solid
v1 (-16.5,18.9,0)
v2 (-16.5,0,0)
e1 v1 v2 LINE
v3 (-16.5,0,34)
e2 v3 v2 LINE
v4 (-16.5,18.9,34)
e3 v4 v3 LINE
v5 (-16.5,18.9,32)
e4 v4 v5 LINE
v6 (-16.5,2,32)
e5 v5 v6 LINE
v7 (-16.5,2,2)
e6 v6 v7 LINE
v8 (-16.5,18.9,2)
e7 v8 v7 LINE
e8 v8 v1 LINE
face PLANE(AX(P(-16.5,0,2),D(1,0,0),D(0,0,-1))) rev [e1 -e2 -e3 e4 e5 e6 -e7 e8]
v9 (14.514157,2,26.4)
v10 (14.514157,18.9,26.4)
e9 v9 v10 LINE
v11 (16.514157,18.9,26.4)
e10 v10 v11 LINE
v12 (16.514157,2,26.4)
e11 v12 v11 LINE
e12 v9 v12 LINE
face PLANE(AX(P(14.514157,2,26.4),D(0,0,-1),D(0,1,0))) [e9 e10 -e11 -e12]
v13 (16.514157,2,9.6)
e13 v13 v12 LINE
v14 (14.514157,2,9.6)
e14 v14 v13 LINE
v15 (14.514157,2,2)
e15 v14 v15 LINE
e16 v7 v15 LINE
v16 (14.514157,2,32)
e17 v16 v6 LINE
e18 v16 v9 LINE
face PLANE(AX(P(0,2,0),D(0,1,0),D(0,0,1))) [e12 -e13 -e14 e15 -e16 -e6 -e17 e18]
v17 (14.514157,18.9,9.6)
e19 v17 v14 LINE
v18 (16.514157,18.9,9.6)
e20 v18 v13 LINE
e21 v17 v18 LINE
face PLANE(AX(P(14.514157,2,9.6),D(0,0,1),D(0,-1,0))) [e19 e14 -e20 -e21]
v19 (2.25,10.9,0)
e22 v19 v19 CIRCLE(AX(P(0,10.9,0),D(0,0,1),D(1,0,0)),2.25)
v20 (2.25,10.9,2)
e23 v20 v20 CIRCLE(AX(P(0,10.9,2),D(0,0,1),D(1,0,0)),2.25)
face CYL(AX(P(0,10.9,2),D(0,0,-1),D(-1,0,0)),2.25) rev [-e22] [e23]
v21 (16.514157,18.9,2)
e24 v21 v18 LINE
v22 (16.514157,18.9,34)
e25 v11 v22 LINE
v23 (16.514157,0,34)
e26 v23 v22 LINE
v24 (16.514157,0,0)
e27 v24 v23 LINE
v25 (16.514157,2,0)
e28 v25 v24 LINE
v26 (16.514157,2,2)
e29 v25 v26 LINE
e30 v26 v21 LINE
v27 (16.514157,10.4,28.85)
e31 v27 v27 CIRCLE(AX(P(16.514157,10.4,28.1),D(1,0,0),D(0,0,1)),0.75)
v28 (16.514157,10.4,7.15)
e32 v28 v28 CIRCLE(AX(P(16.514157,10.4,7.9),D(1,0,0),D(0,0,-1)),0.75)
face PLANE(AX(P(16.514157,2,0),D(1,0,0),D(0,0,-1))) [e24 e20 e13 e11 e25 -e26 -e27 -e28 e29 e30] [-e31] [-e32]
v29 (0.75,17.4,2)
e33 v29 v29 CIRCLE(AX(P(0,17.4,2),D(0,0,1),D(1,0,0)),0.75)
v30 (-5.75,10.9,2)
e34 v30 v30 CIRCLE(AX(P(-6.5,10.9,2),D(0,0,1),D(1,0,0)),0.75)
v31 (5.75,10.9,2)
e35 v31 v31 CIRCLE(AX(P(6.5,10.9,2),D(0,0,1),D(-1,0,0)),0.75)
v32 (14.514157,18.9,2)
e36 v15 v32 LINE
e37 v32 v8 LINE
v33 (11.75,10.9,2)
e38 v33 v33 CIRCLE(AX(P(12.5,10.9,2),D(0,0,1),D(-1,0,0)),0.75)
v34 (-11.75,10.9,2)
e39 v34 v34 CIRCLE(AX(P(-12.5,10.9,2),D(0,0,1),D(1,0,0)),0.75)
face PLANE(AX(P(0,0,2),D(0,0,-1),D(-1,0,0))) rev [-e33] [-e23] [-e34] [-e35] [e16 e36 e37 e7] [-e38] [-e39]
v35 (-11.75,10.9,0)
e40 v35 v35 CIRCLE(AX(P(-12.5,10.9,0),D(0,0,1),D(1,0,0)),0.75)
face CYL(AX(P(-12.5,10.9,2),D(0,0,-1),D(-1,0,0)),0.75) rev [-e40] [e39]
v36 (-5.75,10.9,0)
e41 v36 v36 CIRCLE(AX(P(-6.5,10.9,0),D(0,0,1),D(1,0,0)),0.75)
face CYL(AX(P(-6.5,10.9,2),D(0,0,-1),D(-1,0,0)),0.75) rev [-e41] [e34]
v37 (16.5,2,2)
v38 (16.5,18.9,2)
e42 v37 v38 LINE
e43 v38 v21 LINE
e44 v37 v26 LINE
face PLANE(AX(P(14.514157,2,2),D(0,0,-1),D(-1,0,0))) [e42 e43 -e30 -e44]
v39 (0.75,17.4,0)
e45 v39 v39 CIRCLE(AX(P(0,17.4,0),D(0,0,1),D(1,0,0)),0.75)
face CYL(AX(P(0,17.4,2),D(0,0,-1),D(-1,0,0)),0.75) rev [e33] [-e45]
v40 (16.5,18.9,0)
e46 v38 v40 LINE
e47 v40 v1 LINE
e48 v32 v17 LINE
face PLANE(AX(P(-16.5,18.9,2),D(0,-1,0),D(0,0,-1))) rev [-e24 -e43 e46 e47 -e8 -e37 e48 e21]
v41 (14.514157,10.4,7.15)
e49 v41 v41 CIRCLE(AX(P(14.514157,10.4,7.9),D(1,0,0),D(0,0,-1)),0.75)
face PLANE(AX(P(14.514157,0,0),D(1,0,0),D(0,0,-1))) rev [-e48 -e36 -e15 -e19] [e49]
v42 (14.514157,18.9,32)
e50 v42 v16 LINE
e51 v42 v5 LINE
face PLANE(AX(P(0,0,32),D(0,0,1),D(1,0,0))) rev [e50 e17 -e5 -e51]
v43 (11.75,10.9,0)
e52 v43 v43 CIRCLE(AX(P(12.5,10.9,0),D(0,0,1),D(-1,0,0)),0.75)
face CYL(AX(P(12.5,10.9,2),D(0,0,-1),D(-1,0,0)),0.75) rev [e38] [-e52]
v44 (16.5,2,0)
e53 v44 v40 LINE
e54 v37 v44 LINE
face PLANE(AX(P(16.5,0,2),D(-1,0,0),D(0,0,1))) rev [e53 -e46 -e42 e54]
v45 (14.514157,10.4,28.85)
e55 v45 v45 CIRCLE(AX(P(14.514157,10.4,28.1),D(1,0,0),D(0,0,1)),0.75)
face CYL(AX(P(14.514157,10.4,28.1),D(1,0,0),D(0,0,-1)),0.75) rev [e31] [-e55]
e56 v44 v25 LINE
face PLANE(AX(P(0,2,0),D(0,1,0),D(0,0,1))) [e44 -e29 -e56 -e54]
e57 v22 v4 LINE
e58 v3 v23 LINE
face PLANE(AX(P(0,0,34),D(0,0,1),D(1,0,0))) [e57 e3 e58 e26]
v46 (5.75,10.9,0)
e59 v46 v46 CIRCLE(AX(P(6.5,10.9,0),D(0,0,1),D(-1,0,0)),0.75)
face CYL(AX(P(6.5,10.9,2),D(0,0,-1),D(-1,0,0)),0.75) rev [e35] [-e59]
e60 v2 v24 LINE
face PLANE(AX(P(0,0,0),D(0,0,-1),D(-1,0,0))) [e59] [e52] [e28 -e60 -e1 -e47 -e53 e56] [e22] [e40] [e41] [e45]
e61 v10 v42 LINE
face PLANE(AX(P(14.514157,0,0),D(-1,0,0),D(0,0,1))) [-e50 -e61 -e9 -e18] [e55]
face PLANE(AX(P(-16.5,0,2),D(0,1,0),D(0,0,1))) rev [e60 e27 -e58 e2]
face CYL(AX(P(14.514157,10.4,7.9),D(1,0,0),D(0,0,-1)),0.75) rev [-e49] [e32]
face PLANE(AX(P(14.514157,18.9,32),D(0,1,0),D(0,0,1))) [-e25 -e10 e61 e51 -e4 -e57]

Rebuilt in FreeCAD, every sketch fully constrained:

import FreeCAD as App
import Part
import Sketcher
from FreeCAD import Vector

doc = App.newDocument("Part")
body = doc.addObject("PartDesign::Body", "Body")

# Sketch on XY plane
sketch1 = body.newObject("Sketcher::SketchObject", "Sketch")
sketch1.AttachmentSupport = (doc.getObject("XY_Plane"), [""])
sketch1.MapMode = "FlatFace"
sketch1.addGeometry(Part.LineSegment(Vector(-16.5, 18.9, 0), Vector(-16.5, 0, 0)), False)
sketch1.addGeometry(Part.LineSegment(Vector(-16.5, 0, 0), Vector(16.5, 0, 0)), False)
sketch1.addGeometry(Part.LineSegment(Vector(16.5, 0, 0), Vector(16.5, 18.9, 0)), False)
sketch1.addGeometry(Part.LineSegment(Vector(16.5, 18.9, 0), Vector(-16.5, 18.9, 0)), False)
sketch1.addGeometry(Part.Circle(Vector(-12.5, 10.9, 0), Vector(0, 0, 1), 0.8), False)
sketch1.addGeometry(Part.Circle(Vector(-6.5, 10.9, 0), Vector(0, 0, 1), 0.8), False)
sketch1.addGeometry(Part.Circle(Vector(0, 10.9, 0), Vector(0, 0, 1), 2.2), False)
sketch1.addGeometry(Part.Circle(Vector(6.5, 10.9, 0), Vector(0, 0, 1), 0.8), False)
sketch1.addGeometry(Part.Circle(Vector(12.5, 10.9, 0), Vector(0, 0, 1), 0.8), False)
sketch1.addGeometry(Part.Circle(Vector(0, 17.4, 0), Vector(0, 0, 1), 0.8), False)
sketch1.addConstraint(Sketcher.Constraint("Coincident", 0, 2, 1, 1))
sketch1.addConstraint(Sketcher.Constraint("Coincident", 1, 2, 2, 1))
sketch1.addConstraint(Sketcher.Constraint("Coincident", 2, 2, 3, 1))
sketch1.addConstraint(Sketcher.Constraint("Coincident", 3, 2, 0, 1))
sketch1.addConstraint(Sketcher.Constraint("Vertical", 0))
sketch1.addConstraint(Sketcher.Constraint("Horizontal", 1))
sketch1.addConstraint(Sketcher.Constraint("Vertical", 2))
sketch1.addConstraint(Sketcher.Constraint("Horizontal", 3))
sketch1.addConstraint(Sketcher.Constraint("Equal", 4, 5))
sketch1.addConstraint(Sketcher.Constraint("Equal", 5, 7))
sketch1.addConstraint(Sketcher.Constraint("Equal", 7, 8))
sketch1.addConstraint(Sketcher.Constraint("Equal", 8, 9))
sketch1.addConstraint(Sketcher.Constraint("Symmetric", 0, 2, 1, 2, -1, 1))
sketch1.addConstraint(Sketcher.Constraint("Symmetric", 5, 3, 7, 3, -2))
sketch1.addConstraint(Sketcher.Constraint("Symmetric", 4, 3, 8, 3, -2))
sketch1.addConstraint(Sketcher.Constraint("PointOnObject", 6, 3, -2))
sketch1.addConstraint(Sketcher.Constraint("PointOnObject", 9, 3, -2))
sketch1.addConstraint(Sketcher.Constraint("Horizontal", 4, 3, 5, 3))
sketch1.addConstraint(Sketcher.Constraint("Horizontal", 5, 3, 6, 3))
sketch1.addConstraint(Sketcher.Constraint("Diameter", 4, 1.5))
sketch1.addConstraint(Sketcher.Constraint("Diameter", 6, 4.5))
sketch1.addConstraint(Sketcher.Constraint("DistanceX", 1, 1, 1, 2, 33.0))
sketch1.addConstraint(Sketcher.Constraint("DistanceY", 0, 2, 0, 1, 18.9))
sketch1.addConstraint(Sketcher.Constraint("DistanceX", 4, 3, 5, 3, 6.0))
sketch1.addConstraint(Sketcher.Constraint("DistanceX", 5, 3, 7, 3, 13.0))
sketch1.addConstraint(Sketcher.Constraint("DistanceY", 8, 3, 2, 2, 8.0))
sketch1.addConstraint(Sketcher.Constraint("DistanceY", -1, 1, 9, 3, 17.4))
pad1 = body.newObject("PartDesign::Pad", "Pad")
pad1.Profile = sketch1
pad1.Length = 2

# Sketch on XZ plane
sketch2 = body.newObject("Sketcher::SketchObject", "Sketch001")
sketch2.AttachmentSupport = (doc.getObject("XZ_Plane"), [""])
sketch2.MapMode = "FlatFace"
sketch2.addGeometry(Part.LineSegment(Vector(-16, 32, 0), Vector(-16, 0, 0)), False)
sketch2.addGeometry(Part.LineSegment(Vector(-16, 0, 0), Vector(17, 0, 0)), False)
sketch2.addGeometry(Part.LineSegment(Vector(17, 0, 0), Vector(17, 32, 0)), False)
sketch2.addGeometry(Part.LineSegment(Vector(17, 32, 0), Vector(-16, 32, 0)), False)
sketch2.addConstraint(Sketcher.Constraint("Coincident", 0, 2, 1, 1))
sketch2.addConstraint(Sketcher.Constraint("Coincident", 1, 2, 2, 1))
sketch2.addConstraint(Sketcher.Constraint("Coincident", 2, 2, 3, 1))
sketch2.addConstraint(Sketcher.Constraint("Coincident", 3, 2, 0, 1))
sketch2.addConstraint(Sketcher.Constraint("Vertical", 0))
sketch2.addConstraint(Sketcher.Constraint("Horizontal", 1))
sketch2.addConstraint(Sketcher.Constraint("Vertical", 2))
sketch2.addConstraint(Sketcher.Constraint("Horizontal", 3))
sketch2.addConstraint(Sketcher.Constraint("PointOnObject", 0, 2, -1))
sketch2.addConstraint(Sketcher.Constraint("DistanceY", 0, 2, 0, 1, 32.0))
sketch2.addConstraint(Sketcher.Constraint("DistanceX", 0, 2, -1, 1, 16.5))
sketch2.addConstraint(Sketcher.Constraint("DistanceX", 1, 1, 1, 2, 33.014157))
pad2 = body.newObject("PartDesign::Pad", "Pad001")
pad2.Profile = sketch2
pad2.Length = 2
pad2.Reversed = True

# Sketch on YZ plane
sketch3 = body.newObject("Sketcher::SketchObject", "Sketch002")
sketch3.AttachmentSupport = (doc.getObject("YZ_Plane"), [""])
sketch3.MapMode = "FlatFace"
sketch3.AttachmentOffset = App.Placement(Vector(0, 0, 16.514157), App.Rotation())
sketch3.addGeometry(Part.LineSegment(Vector(18.9, 32, 0), Vector(2, 32, 0)), False)
sketch3.addGeometry(Part.LineSegment(Vector(2, 32, 0), Vector(2, 26.4, 0)), False)
sketch3.addGeometry(Part.LineSegment(Vector(2, 26.4, 0), Vector(18.9, 26.4, 0)), False)
sketch3.addGeometry(Part.LineSegment(Vector(18.9, 26.4, 0), Vector(18.9, 32, 0)), False)
sketch3.addGeometry(Part.Circle(Vector(10.4, 28.1, 0), Vector(0, 0, 1), 0.8), False)
sketch3.addGeometry(Part.LineSegment(Vector(18.9, 9.6, 0), Vector(2, 9.6, 0)), False)
sketch3.addGeometry(Part.LineSegment(Vector(2, 9.6, 0), Vector(2, 2, 0)), False)
sketch3.addGeometry(Part.LineSegment(Vector(2, 2, 0), Vector(18.9, 2, 0)), False)
sketch3.addGeometry(Part.LineSegment(Vector(18.9, 2, 0), Vector(18.9, 9.6, 0)), False)
sketch3.addGeometry(Part.Circle(Vector(10.4, 7.9, 0), Vector(0, 0, 1), 0.8), False)
sketch3.addConstraint(Sketcher.Constraint("Coincident", 0, 2, 1, 1))
sketch3.addConstraint(Sketcher.Constraint("Coincident", 1, 2, 2, 1))
sketch3.addConstraint(Sketcher.Constraint("Coincident", 2, 2, 3, 1))
sketch3.addConstraint(Sketcher.Constraint("Coincident", 3, 2, 0, 1))
sketch3.addConstraint(Sketcher.Constraint("Coincident", 5, 2, 6, 1))
sketch3.addConstraint(Sketcher.Constraint("Coincident", 6, 2, 7, 1))
sketch3.addConstraint(Sketcher.Constraint("Coincident", 7, 2, 8, 1))
sketch3.addConstraint(Sketcher.Constraint("Coincident", 8, 2, 5, 1))
sketch3.addConstraint(Sketcher.Constraint("Horizontal", 0))
sketch3.addConstraint(Sketcher.Constraint("Vertical", 1))
sketch3.addConstraint(Sketcher.Constraint("Horizontal", 2))
sketch3.addConstraint(Sketcher.Constraint("Vertical", 3))
sketch3.addConstraint(Sketcher.Constraint("Horizontal", 5))
sketch3.addConstraint(Sketcher.Constraint("Vertical", 6))
sketch3.addConstraint(Sketcher.Constraint("Horizontal", 7))
sketch3.addConstraint(Sketcher.Constraint("Vertical", 8))
sketch3.addConstraint(Sketcher.Constraint("Equal", 4, 9))
sketch3.addConstraint(Sketcher.Constraint("Vertical", 4, 3, 9, 3))
sketch3.addConstraint(Sketcher.Constraint("Vertical", 1, 2, 5, 2))
sketch3.addConstraint(Sketcher.Constraint("Vertical", 3, 2, 7, 2))
sketch3.addConstraint(Sketcher.Constraint("Diameter", 4, 1.5))
sketch3.addConstraint(Sketcher.Constraint("DistanceX", 0, 2, 0, 1, 16.9))
sketch3.addConstraint(Sketcher.Constraint("DistanceY", 1, 2, 1, 1, 5.6))
sketch3.addConstraint(Sketcher.Constraint("DistanceY", 6, 2, 6, 1, 7.6))
sketch3.addConstraint(Sketcher.Constraint("DistanceX", -1, 1, 0, 2, 2.0))
sketch3.addConstraint(Sketcher.Constraint("DistanceY", -1, 1, 0, 2, 32.0))
sketch3.addConstraint(Sketcher.Constraint("DistanceY", -1, 1, 6, 2, 2.0))
sketch3.addConstraint(Sketcher.Constraint("DistanceX", -1, 1, 4, 3, 10.4))
sketch3.addConstraint(Sketcher.Constraint("DistanceY", -1, 1, 4, 3, 28.1))
sketch3.addConstraint(Sketcher.Constraint("DistanceY", -1, 1, 9, 3, 7.9))
pad3 = body.newObject("PartDesign::Pad", "Pad002")
pad3.Profile = sketch3
pad3.Length = 2
pad3.Reversed = True

# Sketch on XY plane
sketch4 = body.newObject("Sketcher::SketchObject", "Sketch003")
sketch4.AttachmentSupport = (doc.getObject("XY_Plane"), [""])
sketch4.MapMode = "FlatFace"
sketch4.AttachmentOffset = App.Placement(Vector(0, 0, 32), App.Rotation())
sketch4.addGeometry(Part.LineSegment(Vector(-16, 19, 0), Vector(-16, 0, 0)), False)
sketch4.addGeometry(Part.LineSegment(Vector(-16, 0, 0), Vector(17, 0, 0)), False)
sketch4.addGeometry(Part.LineSegment(Vector(17, 0, 0), Vector(17, 19, 0)), False)
sketch4.addGeometry(Part.LineSegment(Vector(17, 19, 0), Vector(-16, 19, 0)), False)
sketch4.addConstraint(Sketcher.Constraint("Coincident", 0, 2, 1, 1))
sketch4.addConstraint(Sketcher.Constraint("Coincident", 1, 2, 2, 1))
sketch4.addConstraint(Sketcher.Constraint("Coincident", 2, 2, 3, 1))
sketch4.addConstraint(Sketcher.Constraint("Coincident", 3, 2, 0, 1))
sketch4.addConstraint(Sketcher.Constraint("Vertical", 0))
sketch4.addConstraint(Sketcher.Constraint("Horizontal", 1))
sketch4.addConstraint(Sketcher.Constraint("Vertical", 2))
sketch4.addConstraint(Sketcher.Constraint("Horizontal", 3))
sketch4.addConstraint(Sketcher.Constraint("PointOnObject", 0, 2, -1))
sketch4.addConstraint(Sketcher.Constraint("DistanceY", 0, 2, 0, 1, 18.9))
sketch4.addConstraint(Sketcher.Constraint("DistanceX", 0, 2, -1, 1, 16.5))
sketch4.addConstraint(Sketcher.Constraint("DistanceX", 1, 1, 1, 2, 33.014157))
pad4 = body.newObject("PartDesign::Pad", "Pad003")
pad4.Profile = sketch4
pad4.Length = 2

doc.recompute()
